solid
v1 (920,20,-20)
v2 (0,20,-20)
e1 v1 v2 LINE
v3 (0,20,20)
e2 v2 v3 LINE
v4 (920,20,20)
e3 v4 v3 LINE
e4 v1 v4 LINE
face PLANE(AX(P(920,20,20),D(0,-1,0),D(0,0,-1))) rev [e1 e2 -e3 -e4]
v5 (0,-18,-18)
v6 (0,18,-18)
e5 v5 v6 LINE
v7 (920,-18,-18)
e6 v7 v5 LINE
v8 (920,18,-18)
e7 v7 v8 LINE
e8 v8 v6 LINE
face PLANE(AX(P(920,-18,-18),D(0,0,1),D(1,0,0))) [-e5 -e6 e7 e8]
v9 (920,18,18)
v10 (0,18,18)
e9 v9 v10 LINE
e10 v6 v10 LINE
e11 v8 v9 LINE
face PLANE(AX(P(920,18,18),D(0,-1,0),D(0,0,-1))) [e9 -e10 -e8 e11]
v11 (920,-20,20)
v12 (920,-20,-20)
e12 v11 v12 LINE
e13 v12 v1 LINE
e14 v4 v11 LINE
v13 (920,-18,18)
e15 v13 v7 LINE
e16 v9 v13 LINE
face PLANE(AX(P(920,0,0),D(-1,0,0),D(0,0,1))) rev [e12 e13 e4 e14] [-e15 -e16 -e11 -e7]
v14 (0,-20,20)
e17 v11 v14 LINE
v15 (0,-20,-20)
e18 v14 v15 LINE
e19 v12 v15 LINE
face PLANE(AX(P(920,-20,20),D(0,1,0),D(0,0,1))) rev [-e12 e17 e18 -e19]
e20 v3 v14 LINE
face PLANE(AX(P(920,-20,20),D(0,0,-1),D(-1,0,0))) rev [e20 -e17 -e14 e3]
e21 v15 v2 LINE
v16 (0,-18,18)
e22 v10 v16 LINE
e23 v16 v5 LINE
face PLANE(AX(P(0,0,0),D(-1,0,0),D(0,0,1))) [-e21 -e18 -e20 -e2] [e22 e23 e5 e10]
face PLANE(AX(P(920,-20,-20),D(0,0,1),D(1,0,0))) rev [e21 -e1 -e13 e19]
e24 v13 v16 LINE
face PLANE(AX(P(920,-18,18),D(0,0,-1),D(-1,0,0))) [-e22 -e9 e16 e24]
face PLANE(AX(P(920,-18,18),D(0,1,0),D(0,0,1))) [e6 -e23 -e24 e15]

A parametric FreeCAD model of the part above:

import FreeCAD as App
import Part
import Sketcher

V = App.Vector


def add_polygon(sketch, points):
    """Adds a closed chain of lines whose ends are joined by coincident constraints."""
    first, n = sketch.GeometryCount, len(points)
    for a, b in zip(points, points[1:] + points[:1]):
        sketch.addGeometry(Part.LineSegment(App.Vector(*a, 0), App.Vector(*b, 0)), False)
    for i in range(n):
        sketch.addConstraint(Sketcher.Constraint("Coincident", first + i, 2, first + (i + 1) % n, 1))

doc = App.newDocument("Part")
body = doc.addObject("PartDesign::Body", "Body")

sketch1 = body.newObject("Sketcher::SketchObject", "Sketch")
sketch1.AttachmentSupport = (doc.getObject("YZ_Plane"), [""])
sketch1.MapMode = "FlatFace"
add_polygon(sketch1, [(20, 20), (-20, 20), (-20, -20), (20, -20)])
add_polygon(sketch1, [(-18, -18), (-18, 18), (18, 18), (18, -18)])
sketch1.addConstraint(Sketcher.Constraint("Horizontal", 0))
sketch1.addConstraint(Sketcher.Constraint("Vertical", 1))
sketch1.addConstraint(Sketcher.Constraint("Horizontal", 2))
sketch1.addConstraint(Sketcher.Constraint("Vertical", 3))
sketch1.addConstraint(Sketcher.Constraint("Vertical", 4))
sketch1.addConstraint(Sketcher.Constraint("Horizontal", 5))
sketch1.addConstraint(Sketcher.Constraint("Vertical", 6))
sketch1.addConstraint(Sketcher.Constraint("Horizontal", 7))
sketch1.addConstraint(Sketcher.Constraint("Symmetric", 0, 2, 2, 2, -1, 1))
sketch1.addConstraint(Sketcher.Constraint("Symmetric", 4, 2, 6, 2, -1, 1))
sketch1.addConstraint(Sketcher.Constraint("Equal", 2, 1))
sketch1.addConstraint(Sketcher.Constraint("Equal", 7, 4))
sketch1.addConstraint(Sketcher.Constraint("DistanceX", 0, 2, 0, 1, 40.0))
sketch1.addConstraint(Sketcher.Constraint("DistanceX", 5, 1, 5, 2, 36.0))
pad1 = body.newObject("PartDesign::Pad", "Pad")
pad1.Profile = sketch1
pad1.Length = 920

doc.recompute()
